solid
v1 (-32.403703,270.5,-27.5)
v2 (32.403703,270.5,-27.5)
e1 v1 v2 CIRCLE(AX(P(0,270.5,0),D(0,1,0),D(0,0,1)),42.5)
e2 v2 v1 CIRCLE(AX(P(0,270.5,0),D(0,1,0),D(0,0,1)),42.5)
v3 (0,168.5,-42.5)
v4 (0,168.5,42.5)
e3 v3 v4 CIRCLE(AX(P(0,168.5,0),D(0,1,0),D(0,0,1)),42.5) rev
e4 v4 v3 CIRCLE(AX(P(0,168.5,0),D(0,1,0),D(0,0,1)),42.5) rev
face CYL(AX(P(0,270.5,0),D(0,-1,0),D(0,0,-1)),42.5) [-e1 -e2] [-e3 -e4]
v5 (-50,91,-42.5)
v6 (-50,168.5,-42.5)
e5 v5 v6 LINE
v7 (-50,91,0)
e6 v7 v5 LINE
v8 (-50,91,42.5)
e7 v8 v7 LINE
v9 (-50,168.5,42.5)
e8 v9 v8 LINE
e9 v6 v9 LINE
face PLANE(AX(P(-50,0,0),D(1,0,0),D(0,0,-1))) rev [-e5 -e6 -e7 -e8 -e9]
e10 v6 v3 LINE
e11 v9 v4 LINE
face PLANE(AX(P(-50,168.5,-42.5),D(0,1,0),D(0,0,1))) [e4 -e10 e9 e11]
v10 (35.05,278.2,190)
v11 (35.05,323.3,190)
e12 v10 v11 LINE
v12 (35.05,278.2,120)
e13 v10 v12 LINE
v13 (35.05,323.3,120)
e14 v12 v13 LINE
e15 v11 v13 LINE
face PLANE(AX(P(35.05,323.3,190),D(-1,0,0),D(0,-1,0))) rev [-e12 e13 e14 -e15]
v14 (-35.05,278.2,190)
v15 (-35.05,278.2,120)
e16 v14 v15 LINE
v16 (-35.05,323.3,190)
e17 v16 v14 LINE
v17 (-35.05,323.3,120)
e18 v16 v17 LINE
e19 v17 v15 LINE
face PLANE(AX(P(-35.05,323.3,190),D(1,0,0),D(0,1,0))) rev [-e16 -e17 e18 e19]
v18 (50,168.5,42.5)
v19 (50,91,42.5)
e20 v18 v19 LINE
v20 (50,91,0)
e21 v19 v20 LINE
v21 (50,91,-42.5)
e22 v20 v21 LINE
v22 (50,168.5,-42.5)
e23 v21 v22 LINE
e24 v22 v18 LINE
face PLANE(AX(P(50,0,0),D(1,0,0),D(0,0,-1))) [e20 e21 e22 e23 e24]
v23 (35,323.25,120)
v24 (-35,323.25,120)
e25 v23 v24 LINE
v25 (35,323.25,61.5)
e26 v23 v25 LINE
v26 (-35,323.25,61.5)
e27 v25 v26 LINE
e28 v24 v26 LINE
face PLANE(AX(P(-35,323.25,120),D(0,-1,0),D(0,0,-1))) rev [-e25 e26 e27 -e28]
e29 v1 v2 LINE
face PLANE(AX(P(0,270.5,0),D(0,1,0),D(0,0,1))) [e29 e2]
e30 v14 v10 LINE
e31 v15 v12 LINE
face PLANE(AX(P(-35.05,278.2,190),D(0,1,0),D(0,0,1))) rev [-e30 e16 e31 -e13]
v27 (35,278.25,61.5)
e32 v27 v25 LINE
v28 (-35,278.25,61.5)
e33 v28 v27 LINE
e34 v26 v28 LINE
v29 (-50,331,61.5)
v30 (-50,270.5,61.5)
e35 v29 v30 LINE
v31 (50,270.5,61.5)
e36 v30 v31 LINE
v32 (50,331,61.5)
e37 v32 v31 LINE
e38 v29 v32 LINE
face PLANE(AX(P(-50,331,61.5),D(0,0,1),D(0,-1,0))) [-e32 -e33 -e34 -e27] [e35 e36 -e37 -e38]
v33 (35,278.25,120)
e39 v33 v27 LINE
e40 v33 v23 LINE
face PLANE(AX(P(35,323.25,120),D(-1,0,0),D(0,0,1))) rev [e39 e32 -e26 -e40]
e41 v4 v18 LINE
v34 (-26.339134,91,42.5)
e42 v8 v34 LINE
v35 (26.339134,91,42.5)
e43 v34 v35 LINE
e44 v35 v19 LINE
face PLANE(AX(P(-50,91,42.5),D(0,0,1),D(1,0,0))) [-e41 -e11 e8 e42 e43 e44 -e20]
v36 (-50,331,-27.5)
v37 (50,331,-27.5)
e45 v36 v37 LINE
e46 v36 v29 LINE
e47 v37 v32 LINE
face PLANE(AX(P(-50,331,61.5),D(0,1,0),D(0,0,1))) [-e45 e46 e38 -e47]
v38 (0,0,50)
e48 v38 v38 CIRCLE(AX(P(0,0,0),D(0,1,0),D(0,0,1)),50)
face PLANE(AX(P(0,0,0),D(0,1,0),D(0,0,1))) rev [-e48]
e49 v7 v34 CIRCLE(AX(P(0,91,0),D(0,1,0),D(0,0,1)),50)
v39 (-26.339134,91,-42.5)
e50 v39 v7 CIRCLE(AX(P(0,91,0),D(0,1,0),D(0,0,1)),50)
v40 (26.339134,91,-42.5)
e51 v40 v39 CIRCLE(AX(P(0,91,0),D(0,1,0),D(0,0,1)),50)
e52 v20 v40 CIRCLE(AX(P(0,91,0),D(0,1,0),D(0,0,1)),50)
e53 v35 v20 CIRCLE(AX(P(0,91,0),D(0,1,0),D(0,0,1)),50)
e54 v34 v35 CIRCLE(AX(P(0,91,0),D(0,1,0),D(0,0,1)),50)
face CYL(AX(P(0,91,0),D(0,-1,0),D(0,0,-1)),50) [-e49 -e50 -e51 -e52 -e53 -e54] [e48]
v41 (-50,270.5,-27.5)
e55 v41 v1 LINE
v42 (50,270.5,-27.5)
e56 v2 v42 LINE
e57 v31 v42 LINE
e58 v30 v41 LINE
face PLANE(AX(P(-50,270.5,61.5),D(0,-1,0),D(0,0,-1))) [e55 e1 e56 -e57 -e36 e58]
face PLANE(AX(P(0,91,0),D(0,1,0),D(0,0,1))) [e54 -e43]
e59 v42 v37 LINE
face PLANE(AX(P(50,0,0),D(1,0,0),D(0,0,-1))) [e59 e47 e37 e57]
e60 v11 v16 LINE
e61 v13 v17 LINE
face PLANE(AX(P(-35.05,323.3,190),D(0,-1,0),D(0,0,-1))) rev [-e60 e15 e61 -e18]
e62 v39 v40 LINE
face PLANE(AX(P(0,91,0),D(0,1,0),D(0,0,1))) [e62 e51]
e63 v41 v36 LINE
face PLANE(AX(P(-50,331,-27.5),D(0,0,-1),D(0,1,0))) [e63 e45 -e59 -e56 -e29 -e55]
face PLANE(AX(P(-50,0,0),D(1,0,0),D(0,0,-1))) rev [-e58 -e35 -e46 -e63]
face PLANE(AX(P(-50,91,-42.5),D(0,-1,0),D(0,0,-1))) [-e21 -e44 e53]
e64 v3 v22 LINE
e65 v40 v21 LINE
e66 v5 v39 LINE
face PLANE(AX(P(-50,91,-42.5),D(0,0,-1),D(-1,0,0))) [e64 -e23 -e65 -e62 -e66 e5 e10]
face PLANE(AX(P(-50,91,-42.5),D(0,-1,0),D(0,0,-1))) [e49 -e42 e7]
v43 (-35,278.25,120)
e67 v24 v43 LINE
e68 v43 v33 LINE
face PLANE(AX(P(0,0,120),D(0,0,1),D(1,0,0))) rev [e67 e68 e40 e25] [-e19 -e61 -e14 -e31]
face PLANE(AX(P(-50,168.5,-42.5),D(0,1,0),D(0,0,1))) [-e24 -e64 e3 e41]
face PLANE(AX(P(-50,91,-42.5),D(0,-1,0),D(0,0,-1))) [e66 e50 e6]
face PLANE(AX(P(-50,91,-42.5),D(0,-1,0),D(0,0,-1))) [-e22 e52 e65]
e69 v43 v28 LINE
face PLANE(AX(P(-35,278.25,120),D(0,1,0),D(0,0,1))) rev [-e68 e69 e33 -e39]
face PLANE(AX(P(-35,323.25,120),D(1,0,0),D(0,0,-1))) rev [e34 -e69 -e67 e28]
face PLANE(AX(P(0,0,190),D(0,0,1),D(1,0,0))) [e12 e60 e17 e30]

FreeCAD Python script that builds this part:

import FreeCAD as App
import Part
import Sketcher

V = App.Vector
Q = App.Units.Quantity


def add_polygon(sketch, points):
    """Adds a closed chain of lines whose ends are joined by coincident constraints."""
    first, n = sketch.GeometryCount, len(points)
    for a, b in zip(points, points[1:] + points[:1]):
        sketch.addGeometry(Part.LineSegment(App.Vector(*a, 0), App.Vector(*b, 0)), False)
    for i in range(n):
        sketch.addConstraint(Sketcher.Constraint("Coincident", first + i, 2, first + (i + 1) % n, 1))

doc = App.newDocument("Part")
body = doc.addObject("PartDesign::Body", "Body")

sketch1 = doc.addObject("Sketcher::SketchObject", "Sketch")
body.addObject(sketch1)
sketch1.AttachmentSupport = (doc.XZ_Plane, [""])
sketch1.MapMode = "FlatFace"
sketch1.addGeometry(Part.Circle(V(0, 0, 0), V(0, 0, 1), 50), False)
sketch1.addConstraint([
    Sketcher.Constraint("Coincident", 0, 3, -1, 1),
    Sketcher.Constraint("Diameter", 0, Q("100 mm")),
])
pad1 = doc.addObject("PartDesign::Pad", "Pad")
body.addObject(pad1)
pad1.Profile = sketch1
pad1.Length = 91
pad1.Reversed = True

sketch2 = doc.addObject("Sketcher::SketchObject", "Sketch001")
body.addObject(sketch2)
sketch2.AttachmentSupport = (doc.YZ_Plane, [""])
sketch2.MapMode = "FlatFace"
add_polygon(sketch2, [(168, 42), (91, 42), (91, -42), (168, -42)])
sketch2.addConstraint([
    Sketcher.Constraint("Horizontal", 0),
    Sketcher.Constraint("Vertical", 1),
    Sketcher.Constraint("Horizontal", 2),
    Sketcher.Constraint("Vertical", 3),
    Sketcher.Constraint("DistanceY", 1, 2, 1, 1, Q("85 mm")),
    Sketcher.Constraint("DistanceX", 0, 2, 0, 1, Q("77.5 mm")),
    Sketcher.Constraint("DistanceX", -1, 1, 0, 2, Q("91 mm")),
    Sketcher.Constraint("DistanceY", -1, 1, 0, 2, Q("42.5 mm")),
])
pad2 = doc.addObject("PartDesign::Pad", "Pad001")
body.addObject(pad2)
pad2.Profile = sketch2
pad2.Type = "TwoLengths"
pad2.Length = 50
pad2.Length2 = 50

sketch3 = doc.addObject("Sketcher::SketchObject", "Sketch002")
body.addObject(sketch3)
sketch3.AttachmentSupport = (doc.XZ_Plane, [""])
sketch3.MapMode = "FlatFace"
sketch3.AttachmentOffset = App.Placement(V(0, 0, -135.5), App.Rotation())
sketch3.addGeometry(Part.Circle(V(0, 0, 0), V(0, 0, 1), 42), False)
sketch3.addConstraint([
    Sketcher.Constraint("Coincident", 0, 3, -1, 1),
    Sketcher.Constraint("Diameter", 0, Q("85 mm")),
])
pad3 = doc.addObject("PartDesign::Pad", "Pad002")
body.addObject(pad3)
pad3.Profile = sketch3
pad3.Length = 135
pad3.Reversed = True

sketch4 = doc.addObject("Sketcher::SketchObject", "Sketch003")
body.addObject(sketch4)
sketch4.AttachmentSupport = (doc.YZ_Plane, [""])
sketch4.MapMode = "FlatFace"
add_polygon(sketch4, [(331, 62), (270, 62), (270, -28), (331, -28)])
sketch4.addConstraint([
    Sketcher.Constraint("Horizontal", 0),
    Sketcher.Constraint("Vertical", 1),
    Sketcher.Constraint("Horizontal", 2),
    Sketcher.Constraint("Vertical", 3),
    Sketcher.Constraint("DistanceY", 1, 2, 1, 1, Q("89 mm")),
    Sketcher.Constraint("DistanceX", 0, 2, 0, 1, Q("60.5 mm")),
    Sketcher.Constraint("DistanceX", -1, 1, 2, 2, Q("331 mm")),
    Sketcher.Constraint("DistanceY", -1, 1, 0, 2, Q("61.5 mm")),
])
pad4 = doc.addObject("PartDesign::Pad", "Pad003")
body.addObject(pad4)
pad4.Profile = sketch4
pad4.Type = "TwoLengths"
pad4.Length = 50
pad4.Length2 = 50

sketch5 = doc.addObject("Sketcher::SketchObject", "Sketch004")
body.addObject(sketch5)
sketch5.AttachmentSupport = (doc.XY_Plane, [""])
sketch5.MapMode = "FlatFace"
sketch5.AttachmentOffset = App.Placement(V(0, 0, 61.5), App.Rotation())
add_polygon(sketch5, [(-35, 323), (-35, 278), (35, 278), (35, 323)])
sketch5.addConstraint([
    Sketcher.Constraint("Vertical", 0),
    Sketcher.Constraint("Horizontal", 1),
    Sketcher.Constraint("Vertical", 2),
    Sketcher.Constraint("Horizontal", 3),
    Sketcher.Constraint("DistanceX", 1, 1, 1, 2, Q("70 mm")),
    Sketcher.Constraint("DistanceY", 0, 2, 0, 1, Q("45 mm")),
    Sketcher.Constraint("DistanceX", 0, 2, -1, 1, Q("35 mm")),
    Sketcher.Constraint("DistanceY", -1, 1, 0, 2, Q("278.25 mm")),
])
pad5 = doc.addObject("PartDesign::Pad", "Pad004")
body.addObject(pad5)
pad5.Profile = sketch5
pad5.Length = 58.5

sketch6 = doc.addObject("Sketcher::SketchObject", "Sketch005")
body.addObject(sketch6)
sketch6.AttachmentSupport = (doc.XY_Plane, [""])
sketch6.MapMode = "FlatFace"
sketch6.AttachmentOffset = App.Placement(V(0, 0, 120), App.Rotation())
add_polygon(sketch6, [(-35, 323), (-35, 278), (35, 278), (35, 323)])
sketch6.addConstraint([
    Sketcher.Constraint("Vertical", 0),
    Sketcher.Constraint("Horizontal", 1),
    Sketcher.Constraint("Vertical", 2),
    Sketcher.Constraint("Horizontal", 3),
    Sketcher.Constraint("DistanceX", 1, 1, 1, 2, Q("70.1 mm")),
    Sketcher.Constraint("DistanceY", 0, 2, 0, 1, Q("45.1 mm")),
    Sketcher.Constraint("DistanceY", -1, 1, 0, 2, Q("278.2 mm")),
    Sketcher.Constraint("DistanceX", 0, 2, -1, 1, Q("35.05 mm")),
])
pad6 = doc.addObject("PartDesign::Pad", "Pad005")
body.addObject(pad6)
pad6.Profile = sketch6
pad6.Length = 70

doc.recompute()
